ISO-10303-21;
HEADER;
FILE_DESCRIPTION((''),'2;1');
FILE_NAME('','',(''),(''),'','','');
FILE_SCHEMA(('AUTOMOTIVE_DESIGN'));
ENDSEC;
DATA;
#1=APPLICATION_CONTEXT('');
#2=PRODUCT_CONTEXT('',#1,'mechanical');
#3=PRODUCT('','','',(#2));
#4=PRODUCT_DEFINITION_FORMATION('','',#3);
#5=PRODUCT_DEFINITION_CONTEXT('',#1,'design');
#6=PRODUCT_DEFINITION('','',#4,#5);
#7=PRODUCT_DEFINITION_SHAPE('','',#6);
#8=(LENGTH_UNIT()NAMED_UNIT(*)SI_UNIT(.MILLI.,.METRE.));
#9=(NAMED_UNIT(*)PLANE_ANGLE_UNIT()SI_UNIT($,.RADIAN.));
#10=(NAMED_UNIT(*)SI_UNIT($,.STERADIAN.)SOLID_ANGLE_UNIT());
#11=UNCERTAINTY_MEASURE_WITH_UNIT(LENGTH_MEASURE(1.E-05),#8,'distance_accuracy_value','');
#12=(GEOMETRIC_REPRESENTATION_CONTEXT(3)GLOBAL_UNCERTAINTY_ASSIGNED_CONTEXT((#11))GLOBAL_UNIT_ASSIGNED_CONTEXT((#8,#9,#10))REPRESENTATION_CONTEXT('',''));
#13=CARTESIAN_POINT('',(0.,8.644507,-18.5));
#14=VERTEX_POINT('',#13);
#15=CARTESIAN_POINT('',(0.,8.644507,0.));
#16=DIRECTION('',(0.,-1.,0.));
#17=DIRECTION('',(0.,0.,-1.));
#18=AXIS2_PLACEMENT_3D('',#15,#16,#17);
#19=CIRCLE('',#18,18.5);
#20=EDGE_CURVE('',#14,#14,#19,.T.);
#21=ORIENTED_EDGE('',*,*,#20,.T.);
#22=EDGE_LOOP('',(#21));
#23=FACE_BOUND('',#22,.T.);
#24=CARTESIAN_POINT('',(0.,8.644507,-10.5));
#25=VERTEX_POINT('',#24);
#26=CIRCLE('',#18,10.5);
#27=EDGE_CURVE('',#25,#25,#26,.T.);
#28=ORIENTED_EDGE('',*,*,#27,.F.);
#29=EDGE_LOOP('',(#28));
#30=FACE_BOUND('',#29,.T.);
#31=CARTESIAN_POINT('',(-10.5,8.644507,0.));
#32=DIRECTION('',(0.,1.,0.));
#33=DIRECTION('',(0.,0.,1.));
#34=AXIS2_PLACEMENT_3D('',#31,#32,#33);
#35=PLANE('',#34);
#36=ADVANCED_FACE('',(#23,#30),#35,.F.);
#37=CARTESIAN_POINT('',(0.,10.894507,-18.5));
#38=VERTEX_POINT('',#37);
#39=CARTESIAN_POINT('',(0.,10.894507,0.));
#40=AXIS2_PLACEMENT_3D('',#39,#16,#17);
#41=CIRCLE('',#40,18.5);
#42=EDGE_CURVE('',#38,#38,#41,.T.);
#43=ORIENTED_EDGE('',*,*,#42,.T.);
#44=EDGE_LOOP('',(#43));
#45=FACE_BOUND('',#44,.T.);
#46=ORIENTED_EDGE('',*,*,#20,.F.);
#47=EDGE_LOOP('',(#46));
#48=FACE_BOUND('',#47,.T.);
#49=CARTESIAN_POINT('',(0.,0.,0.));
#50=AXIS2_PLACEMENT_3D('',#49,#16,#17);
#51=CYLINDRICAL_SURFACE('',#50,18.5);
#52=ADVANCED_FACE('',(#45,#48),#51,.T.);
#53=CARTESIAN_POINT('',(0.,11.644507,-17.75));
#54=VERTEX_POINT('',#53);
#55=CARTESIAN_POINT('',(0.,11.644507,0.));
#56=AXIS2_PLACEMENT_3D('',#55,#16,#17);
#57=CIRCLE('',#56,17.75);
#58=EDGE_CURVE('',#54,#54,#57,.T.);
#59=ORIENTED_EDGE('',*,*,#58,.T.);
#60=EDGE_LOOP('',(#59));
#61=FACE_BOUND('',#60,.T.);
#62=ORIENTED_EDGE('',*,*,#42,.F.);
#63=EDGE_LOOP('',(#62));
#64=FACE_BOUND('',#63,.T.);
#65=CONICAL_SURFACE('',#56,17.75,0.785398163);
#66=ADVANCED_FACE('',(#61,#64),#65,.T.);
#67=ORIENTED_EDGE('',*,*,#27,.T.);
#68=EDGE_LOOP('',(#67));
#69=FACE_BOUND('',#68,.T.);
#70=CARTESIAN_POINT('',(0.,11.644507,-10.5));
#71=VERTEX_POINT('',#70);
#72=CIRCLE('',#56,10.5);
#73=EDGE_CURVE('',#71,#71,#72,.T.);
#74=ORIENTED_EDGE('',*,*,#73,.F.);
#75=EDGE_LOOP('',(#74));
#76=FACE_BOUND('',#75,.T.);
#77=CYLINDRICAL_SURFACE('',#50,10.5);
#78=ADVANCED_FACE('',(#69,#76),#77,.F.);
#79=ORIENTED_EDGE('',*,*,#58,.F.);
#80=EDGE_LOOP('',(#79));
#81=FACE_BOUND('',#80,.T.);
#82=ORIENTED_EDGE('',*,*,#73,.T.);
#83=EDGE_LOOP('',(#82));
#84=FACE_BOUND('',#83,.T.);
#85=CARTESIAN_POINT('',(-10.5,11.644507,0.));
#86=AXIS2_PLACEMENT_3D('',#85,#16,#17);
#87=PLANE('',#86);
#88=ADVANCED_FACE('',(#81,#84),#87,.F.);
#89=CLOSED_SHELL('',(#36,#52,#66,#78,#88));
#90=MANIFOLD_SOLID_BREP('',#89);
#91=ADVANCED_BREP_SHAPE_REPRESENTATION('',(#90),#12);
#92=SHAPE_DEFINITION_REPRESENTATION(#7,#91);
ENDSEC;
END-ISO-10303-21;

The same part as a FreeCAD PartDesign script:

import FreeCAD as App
import Part
import Sketcher

V = App.Vector
Q = App.Units.Quantity


def add_polygon(sketch, points):
    """Adds a closed chain of lines whose ends are joined by coincident constraints."""
    first, n = sketch.GeometryCount, len(points)
    for a, b in zip(points, points[1:] + points[:1]):
        sketch.addGeometry(Part.LineSegment(App.Vector(*a, 0), App.Vector(*b, 0)), False)
    for i in range(n):
        sketch.addConstraint(Sketcher.Constraint("Coincident", first + i, 2, first + (i + 1) % n, 1))

doc = App.newDocument("Part")
body = doc.addObject("PartDesign::Body", "Body")

sketch1 = doc.addObject("Sketcher::SketchObject", "Sketch")
body.addObject(sketch1)
sketch1.AttachmentSupport = (doc.XY_Plane, [""])
sketch1.MapMode = "FlatFace"
add_polygon(sketch1, [(-17.75, 11.644507), (-18.5, 10.894507), (-18.5, 8.644507), (-10.5, 8.644507), (-10.5, 11.644507)])
sketch1.addConstraint([
    Sketcher.Constraint("Vertical", 1),
    Sketcher.Constraint("Horizontal", 2),
    Sketcher.Constraint("Vertical", 3),
    Sketcher.Constraint("Horizontal", 4),
    Sketcher.Constraint("DistanceX", 2, 1, 2, 2, 8.0),
    Sketcher.Constraint("DistanceY", 3, 1, 3, 2, 3.0),
    Sketcher.Constraint("Angle", 0, Q("-135 deg")),
    Sketcher.Constraint("DistanceX", 4, 2, 4, 1, 7.25),
    Sketcher.Constraint("DistanceX", 0, 2, -1, 1, 18.5),
    Sketcher.Constraint("DistanceY", -1, 1, 0, 2, 10.894507),
])
revolution = doc.addObject("PartDesign::Revolution", "Revolution")
body.addObject(revolution)
revolution.Profile = sketch1
revolution.ReferenceAxis = (sketch1, ["V_Axis"])
revolution.Angle = 360

doc.recompute()
